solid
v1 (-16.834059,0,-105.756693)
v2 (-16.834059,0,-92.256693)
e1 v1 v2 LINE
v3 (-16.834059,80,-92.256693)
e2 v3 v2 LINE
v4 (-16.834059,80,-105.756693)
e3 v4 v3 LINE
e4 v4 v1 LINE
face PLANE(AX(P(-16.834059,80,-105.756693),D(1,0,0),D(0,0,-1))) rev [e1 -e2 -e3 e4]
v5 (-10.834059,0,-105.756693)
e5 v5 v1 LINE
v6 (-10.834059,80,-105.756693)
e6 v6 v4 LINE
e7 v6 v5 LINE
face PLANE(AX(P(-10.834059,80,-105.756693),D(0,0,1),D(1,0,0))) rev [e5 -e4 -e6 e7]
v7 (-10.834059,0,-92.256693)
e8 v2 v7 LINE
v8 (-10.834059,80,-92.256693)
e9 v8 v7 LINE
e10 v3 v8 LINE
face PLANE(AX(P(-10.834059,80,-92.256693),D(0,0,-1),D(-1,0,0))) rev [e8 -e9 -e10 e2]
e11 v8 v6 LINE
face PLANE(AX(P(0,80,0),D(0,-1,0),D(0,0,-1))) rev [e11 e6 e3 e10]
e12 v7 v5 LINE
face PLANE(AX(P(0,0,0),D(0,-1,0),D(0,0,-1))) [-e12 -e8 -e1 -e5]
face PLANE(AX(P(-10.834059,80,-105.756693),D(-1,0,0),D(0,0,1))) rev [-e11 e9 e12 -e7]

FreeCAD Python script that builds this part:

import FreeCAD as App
import Part
import Sketcher
from FreeCAD import Vector


def add_polygon(sketch, points):
    """Adds a closed chain of lines whose ends are joined by coincident constraints."""
    first, n = sketch.GeometryCount, len(points)
    for a, b in zip(points, points[1:] + points[:1]):
        sketch.addGeometry(Part.LineSegment(App.Vector(*a, 0), App.Vector(*b, 0)), False)
    for i in range(n):
        sketch.addConstraint(Sketcher.Constraint("Coincident", first + i, 2, first + (i + 1) % n, 1))

doc = App.newDocument("Part")
body = doc.addObject("PartDesign::Body", "Body")

# Sketch on XZ plane
sketch1 = body.newObject("Sketcher::SketchObject", "Sketch")
sketch1.AttachmentSupport = (doc.getObject("XZ_Plane"), [""])
sketch1.MapMode = "FlatFace"
add_polygon(sketch1, [(-11, -92), (-11, -106), (-17, -106), (-17, -92)])  # lines 0-3
sketch1.addConstraint([
    Sketcher.Constraint("Vertical", 0),
    Sketcher.Constraint("Horizontal", 1),
    Sketcher.Constraint("Vertical", 2),
    Sketcher.Constraint("Horizontal", 3),
    Sketcher.Constraint("DistanceX", 1, 2, 1, 1, 6.0),
    Sketcher.Constraint("DistanceY", 0, 2, 0, 1, 13.5),
    Sketcher.Constraint("DistanceX", 0, 2, -1, 1, 10.834059),
    Sketcher.Constraint("DistanceY", 0, 2, -1, 1, 105.756693),
])
pad1 = body.newObject("PartDesign::Pad", "Pad")
pad1.Profile = sketch1
pad1.Length = 80
pad1.Reversed = True

doc.recompute()
